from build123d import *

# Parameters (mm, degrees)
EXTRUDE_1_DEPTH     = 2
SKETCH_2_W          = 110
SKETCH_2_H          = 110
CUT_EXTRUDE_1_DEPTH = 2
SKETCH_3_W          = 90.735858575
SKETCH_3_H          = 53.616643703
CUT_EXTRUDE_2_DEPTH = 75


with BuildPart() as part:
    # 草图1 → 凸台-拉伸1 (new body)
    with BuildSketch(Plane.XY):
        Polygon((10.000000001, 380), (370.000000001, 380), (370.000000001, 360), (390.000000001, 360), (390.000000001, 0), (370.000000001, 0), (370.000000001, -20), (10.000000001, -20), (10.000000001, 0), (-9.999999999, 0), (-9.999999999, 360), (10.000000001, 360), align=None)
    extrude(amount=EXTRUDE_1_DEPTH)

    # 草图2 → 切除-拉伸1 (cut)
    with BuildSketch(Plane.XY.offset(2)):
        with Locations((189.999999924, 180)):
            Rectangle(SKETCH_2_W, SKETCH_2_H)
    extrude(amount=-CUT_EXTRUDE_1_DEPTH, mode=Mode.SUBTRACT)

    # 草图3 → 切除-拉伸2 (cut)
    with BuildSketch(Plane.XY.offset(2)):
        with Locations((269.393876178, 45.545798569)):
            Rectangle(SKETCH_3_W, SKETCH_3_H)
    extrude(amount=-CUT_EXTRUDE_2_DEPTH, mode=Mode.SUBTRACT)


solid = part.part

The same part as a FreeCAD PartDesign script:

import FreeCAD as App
import Part
import Sketcher
from FreeCAD import Vector


def add_polygon(sketch, points):
    """Adds a closed chain of lines whose ends are joined by coincident constraints."""
    first, n = sketch.GeometryCount, len(points)
    for a, b in zip(points, points[1:] + points[:1]):
        sketch.addGeometry(Part.LineSegment(App.Vector(*a, 0), App.Vector(*b, 0)), False)
    for i in range(n):
        sketch.addConstraint(Sketcher.Constraint("Coincident", first + i, 2, first + (i + 1) % n, 1))

doc = App.newDocument("Part")
body = doc.addObject("PartDesign::Body", "Body")

# Sketch on XY plane
sketch1 = doc.addObject("Sketcher::SketchObject", "Sketch")
body.addObject(sketch1)
sketch1.AttachmentSupport = (doc.XY_Plane, [""])
sketch1.MapMode = "FlatFace"
add_polygon(sketch1, [(370, 380), (10, 380), (10, 360), (-10, 360), (-10, 0), (10, 0), (10, -20), (370, -20), (370, 0), (390, 0), (390, 360), (370, 360)])  # lines 0-11
sketch1.addConstraint([
    Sketcher.Constraint("Horizontal", 0),
    Sketcher.Constraint("Vertical", 1),
    Sketcher.Constraint("Horizontal", 2),
    Sketcher.Constraint("Vertical", 3),
    Sketcher.Constraint("Horizontal", 4),
    Sketcher.Constraint("Vertical", 5),
    Sketcher.Constraint("Horizontal", 6),
    Sketcher.Constraint("Vertical", 7),
    Sketcher.Constraint("Horizontal", 8),
    Sketcher.Constraint("Vertical", 9),
    Sketcher.Constraint("Horizontal", 10),
    Sketcher.Constraint("Vertical", 11),
    Sketcher.Constraint("Symmetric", 3, 2, 4, 2, -1, 1),
    Sketcher.Constraint("PointOnObject", 7, 2, -1),
    Sketcher.Constraint("Horizontal", 2, 2, 9, 2),
    Sketcher.Constraint("Vertical", 1, 2, 4, 2),
    Sketcher.Constraint("Vertical", 7, 2, 10, 2),
    Sketcher.Constraint("Equal", 4, 8),
    Sketcher.Constraint("Equal", 10, 1),
    Sketcher.Constraint("Equal", 6, 3),
    Sketcher.Constraint("Equal", 1, 5),
    Sketcher.Constraint("DistanceX", 0, 2, 0, 1, 360.0),
    Sketcher.Constraint("DistanceX", 2, 2, 2, 1, 20.0),
])
pad1 = doc.addObject("PartDesign::Pad", "Pad")
body.addObject(pad1)
pad1.Profile = sketch1
pad1.Length = 2

# Sketch on XY plane
sketch2 = doc.addObject("Sketcher::SketchObject", "Sketch001")
body.addObject(sketch2)
sketch2.AttachmentSupport = (doc.XY_Plane, [""])
sketch2.MapMode = "FlatFace"
sketch2.AttachmentOffset = App.Placement(Vector(0, 0, 2), App.Rotation())
add_polygon(sketch2, [(135, 235), (135, 125), (245, 125), (245, 235)])  # lines 0-3
sketch2.addConstraint([
    Sketcher.Constraint("Vertical", 0),
    Sketcher.Constraint("Horizontal", 1),
    Sketcher.Constraint("Vertical", 2),
    Sketcher.Constraint("Horizontal", 3),
    Sketcher.Constraint("Equal", 3, 0),
    Sketcher.Constraint("DistanceX", 1, 1, 1, 2, 110.0),
    Sketcher.Constraint("DistanceX", -1, 1, 0, 2, 135.0),
    Sketcher.Constraint("DistanceY", -1, 1, 0, 2, 125.0),
])
pocket1 = doc.addObject("PartDesign::Pocket", "Pocket")
body.addObject(pocket1)
pocket1.Profile = sketch2
pocket1.Length = 2

# Sketch on XY plane
sketch3 = doc.addObject("Sketcher::SketchObject", "Sketch002")
body.addObject(sketch3)
sketch3.AttachmentSupport = (doc.XY_Plane, [""])
sketch3.MapMode = "FlatFace"
sketch3.AttachmentOffset = App.Placement(Vector(0, 0, 2), App.Rotation())
add_polygon(sketch3, [(224.025947, 72.35412), (224.025947, 18.737477), (314.761805, 18.737477), (314.761805, 72.35412)])  # lines 0-3
sketch3.addConstraint([
    Sketcher.Constraint("Vertical", 0),
    Sketcher.Constraint("Horizontal", 1),
    Sketcher.Constraint("Vertical", 2),
    Sketcher.Constraint("Horizontal", 3),
    Sketcher.Constraint("DistanceX", 1, 1, 1, 2, 90.735859),
    Sketcher.Constraint("DistanceY", 0, 2, 0, 1, 53.616644),
    Sketcher.Constraint("DistanceY", -1, 1, 2, 2, 72.35412),
    Sketcher.Constraint("DistanceX", -1, 1, 0, 2, 224.025947),
])
pocket2 = doc.addObject("PartDesign::Pocket", "Pocket001")
body.addObject(pocket2)
pocket2.Profile = sketch3
pocket2.Length = 75

doc.recompute()
